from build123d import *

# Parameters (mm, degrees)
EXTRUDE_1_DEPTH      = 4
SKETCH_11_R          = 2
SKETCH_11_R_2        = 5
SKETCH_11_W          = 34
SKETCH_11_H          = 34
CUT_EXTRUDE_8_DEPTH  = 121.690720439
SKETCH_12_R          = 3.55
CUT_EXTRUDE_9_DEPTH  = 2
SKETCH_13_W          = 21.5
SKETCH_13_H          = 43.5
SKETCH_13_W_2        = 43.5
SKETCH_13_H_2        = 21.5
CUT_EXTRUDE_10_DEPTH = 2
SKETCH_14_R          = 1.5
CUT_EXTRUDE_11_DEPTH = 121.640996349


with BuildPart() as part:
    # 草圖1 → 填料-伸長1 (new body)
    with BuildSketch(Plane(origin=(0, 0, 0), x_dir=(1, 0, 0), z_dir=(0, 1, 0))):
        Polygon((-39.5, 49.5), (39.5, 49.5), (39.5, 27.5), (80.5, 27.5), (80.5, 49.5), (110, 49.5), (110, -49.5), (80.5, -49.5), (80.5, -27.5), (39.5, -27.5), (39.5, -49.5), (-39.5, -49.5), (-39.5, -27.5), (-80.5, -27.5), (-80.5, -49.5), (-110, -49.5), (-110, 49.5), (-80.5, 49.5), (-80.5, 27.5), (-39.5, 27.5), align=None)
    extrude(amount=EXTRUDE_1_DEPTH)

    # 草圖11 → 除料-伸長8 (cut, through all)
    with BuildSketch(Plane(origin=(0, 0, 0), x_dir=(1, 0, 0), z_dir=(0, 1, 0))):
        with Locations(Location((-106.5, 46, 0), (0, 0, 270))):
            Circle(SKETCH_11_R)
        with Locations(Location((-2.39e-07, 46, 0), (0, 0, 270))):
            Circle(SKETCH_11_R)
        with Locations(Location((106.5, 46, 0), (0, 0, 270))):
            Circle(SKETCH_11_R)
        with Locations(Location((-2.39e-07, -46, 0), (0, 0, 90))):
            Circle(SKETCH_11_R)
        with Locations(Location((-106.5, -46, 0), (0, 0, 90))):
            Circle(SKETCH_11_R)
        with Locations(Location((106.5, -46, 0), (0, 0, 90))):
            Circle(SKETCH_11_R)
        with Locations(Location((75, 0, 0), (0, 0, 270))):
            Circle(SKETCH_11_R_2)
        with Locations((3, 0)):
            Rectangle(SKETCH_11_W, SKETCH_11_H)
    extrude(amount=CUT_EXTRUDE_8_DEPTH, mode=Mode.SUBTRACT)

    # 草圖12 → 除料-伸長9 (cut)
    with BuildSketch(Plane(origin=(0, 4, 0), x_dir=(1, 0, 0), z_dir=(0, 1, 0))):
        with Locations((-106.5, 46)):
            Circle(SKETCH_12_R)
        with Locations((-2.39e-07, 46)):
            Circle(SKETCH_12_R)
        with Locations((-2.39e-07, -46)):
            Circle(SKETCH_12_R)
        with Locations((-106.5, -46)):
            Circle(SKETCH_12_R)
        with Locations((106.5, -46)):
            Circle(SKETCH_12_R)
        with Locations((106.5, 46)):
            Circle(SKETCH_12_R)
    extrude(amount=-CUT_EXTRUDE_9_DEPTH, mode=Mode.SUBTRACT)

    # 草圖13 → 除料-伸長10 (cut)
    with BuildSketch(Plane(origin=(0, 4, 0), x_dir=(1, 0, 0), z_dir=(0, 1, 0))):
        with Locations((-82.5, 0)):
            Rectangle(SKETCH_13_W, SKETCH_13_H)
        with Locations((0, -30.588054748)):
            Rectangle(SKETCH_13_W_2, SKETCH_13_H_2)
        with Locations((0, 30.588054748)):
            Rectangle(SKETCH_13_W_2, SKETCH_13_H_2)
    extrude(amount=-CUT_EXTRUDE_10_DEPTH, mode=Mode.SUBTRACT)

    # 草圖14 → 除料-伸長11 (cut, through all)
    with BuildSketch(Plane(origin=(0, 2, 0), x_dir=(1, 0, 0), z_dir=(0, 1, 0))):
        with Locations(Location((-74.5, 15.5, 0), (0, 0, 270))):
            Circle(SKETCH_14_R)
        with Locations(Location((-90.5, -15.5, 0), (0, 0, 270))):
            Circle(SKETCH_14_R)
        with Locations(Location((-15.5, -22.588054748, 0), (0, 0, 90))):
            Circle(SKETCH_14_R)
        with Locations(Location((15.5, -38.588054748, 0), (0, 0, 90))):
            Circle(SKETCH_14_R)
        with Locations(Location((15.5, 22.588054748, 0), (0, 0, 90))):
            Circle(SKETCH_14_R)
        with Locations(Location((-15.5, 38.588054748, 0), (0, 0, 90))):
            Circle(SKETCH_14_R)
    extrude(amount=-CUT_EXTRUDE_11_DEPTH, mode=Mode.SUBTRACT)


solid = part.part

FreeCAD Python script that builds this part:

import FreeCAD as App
import Part
import Sketcher
Q = App.Units.Quantity

doc = App.newDocument("Part")
body = doc.addObject("PartDesign::Body", "Body")

# Sketch on XZ plane
sketch1 = body.newObject("Sketcher::SketchObject", "Sketch")
sketch1.AttachmentSupport = (doc.getObject("XZ_Plane"), [""])
sketch1.MapMode = "FlatFace"
sketch1.addGeometry([
    Part.LineSegment(App.Vector(39.5, -49.5, 0), App.Vector(-39.5, -49.5, 0)),  # 0
    Part.LineSegment(App.Vector(-39.5, -49.5, 0), App.Vector(-39.5, -27.5, 0)),  # 1
    Part.LineSegment(App.Vector(-39.5, -27.5, 0), App.Vector(-80.5, -27.5, 0)),  # 2
    Part.LineSegment(App.Vector(-80.5, -27.5, 0), App.Vector(-80.5, -49.5, 0)),  # 3
    Part.LineSegment(App.Vector(-80.5, -49.5, 0), App.Vector(-110, -49.5, 0)),  # 4
    Part.LineSegment(App.Vector(-110, -49.5, 0), App.Vector(-110, 49.5, 0)),  # 5
    Part.LineSegment(App.Vector(-110, 49.5, 0), App.Vector(-80.5, 49.5, 0)),  # 6
    Part.LineSegment(App.Vector(-80.5, 49.5, 0), App.Vector(-80.5, 27.5, 0)),  # 7
    Part.LineSegment(App.Vector(-80.5, 27.5, 0), App.Vector(-39.5, 27.5, 0)),  # 8
    Part.LineSegment(App.Vector(-39.5, 27.5, 0), App.Vector(-39.5, 49.5, 0)),  # 9
    Part.LineSegment(App.Vector(-39.5, 49.5, 0), App.Vector(39.5, 49.5, 0)),  # 10
    Part.LineSegment(App.Vector(39.5, 49.5, 0), App.Vector(39.5, 27.5, 0)),  # 11
    Part.LineSegment(App.Vector(39.5, 27.5, 0), App.Vector(80.5, 27.5, 0)),  # 12
    Part.LineSegment(App.Vector(80.5, 27.5, 0), App.Vector(80.5, 49.5, 0)),  # 13
    Part.LineSegment(App.Vector(80.5, 49.5, 0), App.Vector(110, 49.5, 0)),  # 14
    Part.LineSegment(App.Vector(110, 49.5, 0), App.Vector(110, -49.5, 0)),  # 15
    Part.LineSegment(App.Vector(110, -49.5, 0), App.Vector(80.5, -49.5, 0)),  # 16
    Part.LineSegment(App.Vector(80.5, -49.5, 0), App.Vector(80.5, -27.5, 0)),  # 17
    Part.LineSegment(App.Vector(80.5, -27.5, 0), App.Vector(39.5, -27.5, 0)),  # 18
    Part.LineSegment(App.Vector(39.5, -27.5, 0), App.Vector(39.5, -49.5, 0)),  # 19
], False)
sketch1.addConstraint([
    Sketcher.Constraint("Coincident", 0, 2, 1, 1),
    Sketcher.Constraint("Coincident", 1, 2, 2, 1),
    Sketcher.Constraint("Coincident", 2, 2, 3, 1),
    Sketcher.Constraint("Coincident", 3, 2, 4, 1),
    Sketcher.Constraint("Coincident", 4, 2, 5, 1),
    Sketcher.Constraint("Coincident", 5, 2, 6, 1),
    Sketcher.Constraint("Coincident", 6, 2, 7, 1),
    Sketcher.Constraint("Coincident", 7, 2, 8, 1),
    Sketcher.Constraint("Coincident", 8, 2, 9, 1),
    Sketcher.Constraint("Coincident", 9, 2, 10, 1),
    Sketcher.Constraint("Coincident", 10, 2, 11, 1),
    Sketcher.Constraint("Coincident", 11, 2, 12, 1),
    Sketcher.Constraint("Coincident", 12, 2, 13, 1),
    Sketcher.Constraint("Coincident", 13, 2, 14, 1),
    Sketcher.Constraint("Coincident", 14, 2, 15, 1),
    Sketcher.Constraint("Coincident", 15, 2, 16, 1),
    Sketcher.Constraint("Coincident", 16, 2, 17, 1),
    Sketcher.Constraint("Coincident", 17, 2, 18, 1),
    Sketcher.Constraint("Coincident", 18, 2, 19, 1),
    Sketcher.Constraint("Coincident", 19, 2, 0, 1),
    Sketcher.Constraint("Horizontal", 0),
    Sketcher.Constraint("Vertical", 1),
    Sketcher.Constraint("Horizontal", 2),
    Sketcher.Constraint("Vertical", 3),
    Sketcher.Constraint("Horizontal", 4),
    Sketcher.Constraint("Vertical", 5),
    Sketcher.Constraint("Horizontal", 6),
    Sketcher.Constraint("Vertical", 7),
    Sketcher.Constraint("Horizontal", 8),
    Sketcher.Constraint("Vertical", 9),
    Sketcher.Constraint("Horizontal", 10),
    Sketcher.Constraint("Vertical", 11),
    Sketcher.Constraint("Horizontal", 12),
    Sketcher.Constraint("Vertical", 13),
    Sketcher.Constraint("Horizontal", 14),
    Sketcher.Constraint("Vertical", 15),
    Sketcher.Constraint("Horizontal", 16),
    Sketcher.Constraint("Vertical", 17),
    Sketcher.Constraint("Horizontal", 18),
    Sketcher.Constraint("Vertical", 19),
    Sketcher.Constraint("Symmetric", 0, 2, 10, 2, -1, 1),
    Sketcher.Constraint("Symmetric", 2, 2, 12, 2, -1, 1),
    Sketcher.Constraint("Symmetric", 4, 2, 14, 2, -1, 1),
    Sketcher.Constraint("Symmetric", 6, 2, 16, 2, -1, 1),
    Sketcher.Constraint("Symmetric", 8, 2, 18, 2, -1, 1),
    Sketcher.Constraint("Symmetric", 8, 2, 11, 2, -2),
    Sketcher.Constraint("Symmetric", 6, 2, 13, 2, -2),
    Sketcher.Constraint("Horizontal", 0, 2, 3, 2),
    Sketcher.Constraint("DistanceX", 0, 2, 0, 1, Q("79 mm")),
    Sketcher.Constraint("DistanceX", 2, 2, 2, 1, Q("41 mm")),
    Sketcher.Constraint("DistanceY", 1, 1, 1, 2, Q("22 mm")),
    Sketcher.Constraint("DistanceY", 5, 1, 5, 2, Q("99 mm")),
    Sketcher.Constraint("DistanceX", 4, 2, 4, 1, Q("29.5 mm")),
])
pad1 = body.newObject("PartDesign::Pad", "Pad")
pad1.Profile = sketch1
pad1.Length = 4
pad1.Reversed = True

# Sketch on XZ plane
sketch2 = body.newObject("Sketcher::SketchObject", "Sketch001")
sketch2.AttachmentSupport = (doc.getObject("XZ_Plane"), [""])
sketch2.MapMode = "FlatFace"
sketch2.addGeometry([
    Part.Circle(App.Vector(-106.5, -46, 0), App.Vector(0, 0, 1), 2),  # 0
    Part.Circle(App.Vector(0, -46, 0), App.Vector(0, 0, 1), 2),  # 1
    Part.Circle(App.Vector(106.5, -46, 0), App.Vector(0, 0, 1), 2),  # 2
    Part.Circle(App.Vector(0, 46, 0), App.Vector(0, 0, 1), 2),  # 3
    Part.Circle(App.Vector(-106.5, 46, 0), App.Vector(0, 0, 1), 2),  # 4
    Part.Circle(App.Vector(106.5, 46, 0), App.Vector(0, 0, 1), 2),  # 5
    Part.Circle(App.Vector(75, 0, 0), App.Vector(0, 0, 1), 5),  # 6
    Part.LineSegment(App.Vector(-14, -17, 0), App.Vector(-14, 17, 0)),  # 7
    Part.LineSegment(App.Vector(-14, 17, 0), App.Vector(20, 17, 0)),  # 8
    Part.LineSegment(App.Vector(20, 17, 0), App.Vector(20, -17, 0)),  # 9
    Part.LineSegment(App.Vector(20, -17, 0), App.Vector(-14, -17, 0)),  # 10
], False)
sketch2.addConstraint([
    Sketcher.Constraint("Coincident", 7, 2, 8, 1),
    Sketcher.Constraint("Coincident", 8, 2, 9, 1),
    Sketcher.Constraint("Coincident", 9, 2, 10, 1),
    Sketcher.Constraint("Coincident", 10, 2, 7, 1),
    Sketcher.Constraint("Vertical", 7),
    Sketcher.Constraint("Horizontal", 8),
    Sketcher.Constraint("Vertical", 9),
    Sketcher.Constraint("Horizontal", 10),
    Sketcher.Constraint("Equal", 0, 1),
    Sketcher.Constraint("Equal", 1, 2),
    Sketcher.Constraint("Equal", 2, 3),
    Sketcher.Constraint("Equal", 3, 4),
    Sketcher.Constraint("Equal", 4, 5),
    Sketcher.Constraint("Symmetric", 1, 3, 3, 3, -1, 1),
    Sketcher.Constraint("Symmetric", 2, 3, 4, 3, -1, 1),
    Sketcher.Constraint("Symmetric", 0, 3, 5, 3, -1, 1),
    Sketcher.Constraint("Symmetric", 0, 3, 2, 3, -2),
    Sketcher.Constraint("PointOnObject", 1, 3, -2),
    Sketcher.Constraint("PointOnObject", 6, 3, -1),
    Sketcher.Constraint("Horizontal", 0, 3, 1, 3),
    Sketcher.Constraint("Equal", 10, 7),
    Sketcher.Constraint("Diameter", 0, Q("4 mm")),
    Sketcher.Constraint("Diameter", 6, Q("10 mm")),
    Sketcher.Constraint("DistanceX", 8, 1, 8, 2, Q("34 mm")),
    Sketcher.Constraint("DistanceY", 0, 3, -1, 1, Q("46 mm")),
    Sketcher.Constraint("DistanceX", -1, 1, 6, 3, Q("75 mm")),
    Sketcher.Constraint("DistanceX", 7, 2, -1, 1, Q("14 mm")),
    Sketcher.Constraint("DistanceY", -1, 1, 7, 2, Q("17 mm")),
    Sketcher.Constraint("DistanceX", 0, 3, 2, 3, Q("213 mm")),
])
pocket1 = body.newObject("PartDesign::Pocket", "Pocket")
pocket1.Profile = sketch2
pocket1.Type = "ThroughAll"

# Sketch on XZ plane
sketch3 = body.newObject("Sketcher::SketchObject", "Sketch002")
sketch3.AttachmentSupport = (doc.getObject("XZ_Plane"), [""])
sketch3.MapMode = "FlatFace"
sketch3.AttachmentOffset = App.Placement(App.Vector(0, 0, -4), App.Rotation())
sketch3.addGeometry([
    Part.Circle(App.Vector(-106.5, -46, 0), App.Vector(0, 0, 1), 3.55),  # 0
    Part.Circle(App.Vector(0, -46, 0), App.Vector(0, 0, 1), 3.55),  # 1
    Part.Circle(App.Vector(0, 46, 0), App.Vector(0, 0, 1), 3.55),  # 2
    Part.Circle(App.Vector(-106.5, 46, 0), App.Vector(0, 0, 1), 3.55),  # 3
    Part.Circle(App.Vector(106.5, 46, 0), App.Vector(0, 0, 1), 3.55),  # 4
    Part.Circle(App.Vector(106.5, -46, 0), App.Vector(0, 0, 1), 3.55),  # 5
], False)
sketch3.addConstraint([
    Sketcher.Constraint("Equal", 0, 1),
    Sketcher.Constraint("Equal", 1, 2),
    Sketcher.Constraint("Equal", 2, 3),
    Sketcher.Constraint("Equal", 3, 4),
    Sketcher.Constraint("Equal", 4, 5),
    Sketcher.Constraint("Symmetric", 1, 3, 2, 3, -1, 1),
    Sketcher.Constraint("Symmetric", 0, 3, 4, 3, -1, 1),
    Sketcher.Constraint("Symmetric", 3, 3, 5, 3, -1, 1),
    Sketcher.Constraint("Symmetric", 3, 3, 4, 3, -2),
    Sketcher.Constraint("PointOnObject", 1, 3, -2),
    Sketcher.Constraint("Horizontal", 0, 3, 1, 3),
    Sketcher.Constraint("Diameter", 0, Q("7.1 mm")),
    Sketcher.Constraint("DistanceY", 0, 3, -1, 1, Q("46 mm")),
    Sketcher.Constraint("DistanceX", 3, 3, 4, 3, Q("213 mm")),
])
pocket2 = body.newObject("PartDesign::Pocket", "Pocket001")
pocket2.Profile = sketch3
pocket2.Length = 2
pocket2.Reversed = True

# Sketch on XZ plane
sketch4 = body.newObject("Sketcher::SketchObject", "Sketch003")
sketch4.AttachmentSupport = (doc.getObject("XZ_Plane"), [""])
sketch4.MapMode = "FlatFace"
sketch4.AttachmentOffset = App.Placement(App.Vector(0, 0, -4), App.Rotation())
sketch4.addGeometry([
    Part.LineSegment(App.Vector(-93.25, -21.75, 0), App.Vector(-93.25, 21.75, 0)),  # 0
    Part.LineSegment(App.Vector(-93.25, 21.75, 0), App.Vector(-71.75, 21.75, 0)),  # 1
    Part.LineSegment(App.Vector(-71.75, 21.75, 0), App.Vector(-71.75, -21.75, 0)),  # 2
    Part.LineSegment(App.Vector(-71.75, -21.75, 0), App.Vector(-93.25, -21.75, 0)),  # 3
    Part.LineSegment(App.Vector(-21.75, 19.838055, 0), App.Vector(-21.75, 41.338055, 0)),  # 4
    Part.LineSegment(App.Vector(-21.75, 41.338055, 0), App.Vector(21.75, 41.338055, 0)),  # 5
    Part.LineSegment(App.Vector(21.75, 41.338055, 0), App.Vector(21.75, 19.838055, 0)),  # 6
    Part.LineSegment(App.Vector(21.75, 19.838055, 0), App.Vector(-21.75, 19.838055, 0)),  # 7
    Part.LineSegment(App.Vector(-21.75, -41.338055, 0), App.Vector(-21.75, -19.838055, 0)),  # 8
    Part.LineSegment(App.Vector(-21.75, -19.838055, 0), App.Vector(21.75, -19.838055, 0)),  # 9
    Part.LineSegment(App.Vector(21.75, -19.838055, 0), App.Vector(21.75, -41.338055, 0)),  # 10
    Part.LineSegment(App.Vector(21.75, -41.338055, 0), App.Vector(-21.75, -41.338055, 0)),  # 11
], False)
sketch4.addConstraint([
    Sketcher.Constraint("Coincident", 0, 2, 1, 1),
    Sketcher.Constraint("Coincident", 1, 2, 2, 1),
    Sketcher.Constraint("Coincident", 2, 2, 3, 1),
    Sketcher.Constraint("Coincident", 3, 2, 0, 1),
    Sketcher.Constraint("Coincident", 4, 2, 5, 1),
    Sketcher.Constraint("Coincident", 5, 2, 6, 1),
    Sketcher.Constraint("Coincident", 6, 2, 7, 1),
    Sketcher.Constraint("Coincident", 7, 2, 4, 1),
    Sketcher.Constraint("Coincident", 8, 2, 9, 1),
    Sketcher.Constraint("Coincident", 9, 2, 10, 1),
    Sketcher.Constraint("Coincident", 10, 2, 11, 1),
    Sketcher.Constraint("Coincident", 11, 2, 8, 1),
    Sketcher.Constraint("Vertical", 0),
    Sketcher.Constraint("Horizontal", 1),
    Sketcher.Constraint("Vertical", 2),
    Sketcher.Constraint("Horizontal", 3),
    Sketcher.Constraint("Vertical", 4),
    Sketcher.Constraint("Horizontal", 5),
    Sketcher.Constraint("Vertical", 6),
    Sketcher.Constraint("Horizontal", 7),
    Sketcher.Constraint("Vertical", 8),
    Sketcher.Constraint("Horizontal", 9),
    Sketcher.Constraint("Vertical", 10),
    Sketcher.Constraint("Horizontal", 11),
    Sketcher.Constraint("Symmetric", 6, 2, 8, 2, -1, 1),
    Sketcher.Constraint("Symmetric", 4, 2, 10, 2, -1, 1),
    Sketcher.Constraint("Vertical", 7, 2, 8, 2),
    Sketcher.Constraint("Equal", 11, 0),
    Sketcher.Constraint("Equal", 3, 4),
    Sketcher.Constraint("DistanceX", 1, 1, 1, 2, Q("21.5 mm")),
    Sketcher.Constraint("DistanceX", 5, 1, 5, 2, Q("43.5 mm")),
    Sketcher.Constraint("DistanceX", 1, 2, 4, 2, Q("50 mm")),
    Sketcher.Constraint("DistanceY", -1, 1, 0, 2, Q("21.75 mm")),
    Sketcher.Constraint("DistanceY", 8, 2, 7, 2, Q("39.676109 mm")),
])
pocket3 = body.newObject("PartDesign::Pocket", "Pocket002")
pocket3.Profile = sketch4
pocket3.Length = 2
pocket3.Reversed = True

# Sketch on XZ plane
sketch5 = body.newObject("Sketcher::SketchObject", "Sketch004")
sketch5.AttachmentSupport = (doc.getObject("XZ_Plane"), [""])
sketch5.MapMode = "FlatFace"
sketch5.AttachmentOffset = App.Placement(App.Vector(0, 0, -2), App.Rotation())
sketch5.addGeometry([
    Part.Circle(App.Vector(-74.5, -15.5, 0), App.Vector(0, 0, 1), 1.5),  # 0
    Part.Circle(App.Vector(-90.5, 15.5, 0), App.Vector(0, 0, 1), 1.5),  # 1
    Part.Circle(App.Vector(-15.5, 22.588055, 0), App.Vector(0, 0, 1), 1.5),  # 2
    Part.Circle(App.Vector(15.5, 38.588055, 0), App.Vector(0, 0, 1), 1.5),  # 3
    Part.Circle(App.Vector(15.5, -22.588055, 0), App.Vector(0, 0, 1), 1.5),  # 4
    Part.Circle(App.Vector(-15.5, -38.588055, 0), App.Vector(0, 0, 1), 1.5),  # 5
], False)
sketch5.addConstraint([
    Sketcher.Constraint("Equal", 0, 1),
    Sketcher.Constraint("Equal", 1, 2),
    Sketcher.Constraint("Equal", 2, 3),
    Sketcher.Constraint("Equal", 3, 4),
    Sketcher.Constraint("Equal", 4, 5),
    Sketcher.Constraint("Symmetric", 2, 3, 4, 3, -1, 1),
    Sketcher.Constraint("Symmetric", 3, 3, 5, 3, -1, 1),
    Sketcher.Constraint("Vertical", 3, 3, 4, 3),
    Sketcher.Constraint("Diameter", 0, Q("3 mm")),
    Sketcher.Constraint("DistanceX", 1, 3, 0, 3, Q("16 mm")),
    Sketcher.Constraint("DistanceY", 0, 3, 1, 3, Q("31 mm")),
    Sketcher.Constraint("DistanceX", 0, 3, 2, 3, Q("59 mm")),
    Sketcher.Constraint("DistanceX", 2, 3, 3, 3, Q("31 mm")),
    Sketcher.Constraint("DistanceY", 2, 3, 3, 3, Q("16 mm")),
    Sketcher.Constraint("DistanceY", 0, 3, -1, 1, Q("15.5 mm")),
    Sketcher.Constraint("DistanceY", 4, 3, 2, 3, Q("45.176109 mm")),
])
pocket4 = body.newObject("PartDesign::Pocket", "Pocket003")
pocket4.Profile = sketch5
pocket4.Type = "ThroughAll"
pocket4.Reversed = True

doc.recompute()
